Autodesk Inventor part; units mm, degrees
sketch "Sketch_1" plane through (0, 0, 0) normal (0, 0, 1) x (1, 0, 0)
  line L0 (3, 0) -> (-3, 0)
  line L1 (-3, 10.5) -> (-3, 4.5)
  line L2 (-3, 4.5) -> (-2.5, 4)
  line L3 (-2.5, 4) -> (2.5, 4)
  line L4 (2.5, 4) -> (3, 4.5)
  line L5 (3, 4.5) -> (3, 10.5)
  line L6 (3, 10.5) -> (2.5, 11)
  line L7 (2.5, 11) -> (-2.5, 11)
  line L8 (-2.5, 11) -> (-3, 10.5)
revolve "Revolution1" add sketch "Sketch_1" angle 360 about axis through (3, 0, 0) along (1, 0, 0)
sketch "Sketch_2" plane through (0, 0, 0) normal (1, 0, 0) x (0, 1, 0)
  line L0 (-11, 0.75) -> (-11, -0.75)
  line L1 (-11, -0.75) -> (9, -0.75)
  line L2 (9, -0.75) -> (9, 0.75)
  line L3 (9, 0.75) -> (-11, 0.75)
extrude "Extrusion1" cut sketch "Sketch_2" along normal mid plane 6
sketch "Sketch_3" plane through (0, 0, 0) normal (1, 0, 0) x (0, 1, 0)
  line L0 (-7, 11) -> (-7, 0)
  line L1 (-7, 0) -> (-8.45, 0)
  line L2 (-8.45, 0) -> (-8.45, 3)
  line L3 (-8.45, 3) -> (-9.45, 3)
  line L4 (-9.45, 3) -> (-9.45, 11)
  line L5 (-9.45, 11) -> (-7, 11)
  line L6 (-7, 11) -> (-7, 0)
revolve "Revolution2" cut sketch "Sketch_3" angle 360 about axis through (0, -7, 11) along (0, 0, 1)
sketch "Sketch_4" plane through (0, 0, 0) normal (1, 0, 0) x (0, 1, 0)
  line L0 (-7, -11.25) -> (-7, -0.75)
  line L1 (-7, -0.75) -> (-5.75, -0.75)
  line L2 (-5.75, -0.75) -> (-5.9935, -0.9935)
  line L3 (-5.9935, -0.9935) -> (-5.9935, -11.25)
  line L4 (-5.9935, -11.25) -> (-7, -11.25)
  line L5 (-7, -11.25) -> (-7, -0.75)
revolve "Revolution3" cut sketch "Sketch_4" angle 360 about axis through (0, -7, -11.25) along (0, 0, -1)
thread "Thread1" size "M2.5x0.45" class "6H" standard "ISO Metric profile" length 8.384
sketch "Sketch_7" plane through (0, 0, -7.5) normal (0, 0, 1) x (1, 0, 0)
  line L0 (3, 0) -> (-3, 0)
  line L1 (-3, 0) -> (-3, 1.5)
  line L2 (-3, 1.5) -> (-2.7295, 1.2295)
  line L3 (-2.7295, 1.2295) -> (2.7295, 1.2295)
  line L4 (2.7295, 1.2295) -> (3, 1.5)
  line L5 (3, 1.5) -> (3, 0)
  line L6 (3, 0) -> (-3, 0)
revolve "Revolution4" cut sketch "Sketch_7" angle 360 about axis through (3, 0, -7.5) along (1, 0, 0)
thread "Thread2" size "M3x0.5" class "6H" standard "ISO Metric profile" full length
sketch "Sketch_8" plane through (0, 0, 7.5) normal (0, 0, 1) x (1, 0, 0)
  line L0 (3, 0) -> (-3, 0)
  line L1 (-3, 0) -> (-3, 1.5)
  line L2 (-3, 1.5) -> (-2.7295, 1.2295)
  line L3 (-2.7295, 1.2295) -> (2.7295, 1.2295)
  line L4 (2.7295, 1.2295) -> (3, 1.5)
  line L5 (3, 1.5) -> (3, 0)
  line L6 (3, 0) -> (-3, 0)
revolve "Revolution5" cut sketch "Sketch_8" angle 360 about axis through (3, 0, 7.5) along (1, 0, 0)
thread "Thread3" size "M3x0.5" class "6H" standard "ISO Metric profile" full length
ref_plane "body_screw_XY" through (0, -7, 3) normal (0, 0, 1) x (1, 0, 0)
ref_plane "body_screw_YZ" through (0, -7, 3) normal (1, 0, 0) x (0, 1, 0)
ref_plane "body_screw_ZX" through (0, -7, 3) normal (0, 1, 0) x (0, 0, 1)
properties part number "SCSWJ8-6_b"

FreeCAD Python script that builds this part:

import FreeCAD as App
import Part
import Sketcher
Q = App.Units.Quantity


def add_polygon(sketch, points):
    """Adds a closed chain of lines whose ends are joined by coincident constraints."""
    first, n = sketch.GeometryCount, len(points)
    for a, b in zip(points, points[1:] + points[:1]):
        sketch.addGeometry(Part.LineSegment(App.Vector(*a, 0), App.Vector(*b, 0)), False)
    for i in range(n):
        sketch.addConstraint(Sketcher.Constraint("Coincident", first + i, 2, first + (i + 1) % n, 1))

doc = App.newDocument("Part")
params = doc.addObject("Spreadsheet::Sheet", "Params")
for row, (alias, value) in enumerate([
    ("sketch1_width", "5 mm"),
    ("sketch1_height", "6 mm"),
    ("revolution_angle", "360 deg"),
    ("sketch2_width", "20 mm"),
    ("sketch2_height", "1.5 mm"),
    ("pocket1_length", "6 mm"),
    ("sketch3_width", "1 mm"),
    ("sketch3_height", "11 mm"),
    ("sketch3_height2", "8 mm"),
    ("sketch3_width2", "2.45 mm"),
    ("groove_angle", "360 deg"),
    ("sketch4_height", "10.5 mm"),
    ("sketch4_width", "1.25 mm"),
    ("groove2_angle", "360 deg"),
    ("sketch5_width", "6 mm"),
    ("sketch5_height", "1.5 mm"),
    ("groove3_angle", "360 deg"),
    ("sketch6_width", "6 mm"),
    ("sketch6_height", "1.5 mm"),
    ("groove4_angle", "360 deg"),
], start=1):
    params.set(f"A{row}", alias)
    params.set(f"B{row}", "=" + value)
    params.setAlias(f"B{row}", alias)

body = doc.addObject("PartDesign::Body", "Body")

sketch1 = body.newObject("Sketcher::SketchObject", "Sketch")
sketch1.AttachmentSupport = (doc.getObject("XY_Plane"), [""])
sketch1.MapMode = "FlatFace"
add_polygon(sketch1, [(-2.5, 11), (-3, 10.5), (-3, 4.5), (-2.5, 4), (2.5, 4), (3, 4.5), (3, 10.5), (2.5, 11)])
sketch1.addConstraint(Sketcher.Constraint("Vertical", 1))
sketch1.addConstraint(Sketcher.Constraint("Horizontal", 3))
sketch1.addConstraint(Sketcher.Constraint("Vertical", 5))
sketch1.addConstraint(Sketcher.Constraint("Horizontal", 7))
sketch1.addConstraint(Sketcher.Constraint("Symmetric", 1, 2, 4, 2, -2))
sketch1.addConstraint(Sketcher.Constraint("Perpendicular", 0, 2))
sketch1.addConstraint(Sketcher.Constraint("Perpendicular", 2, 4))
sketch1.addConstraint(Sketcher.Constraint("Perpendicular", 4, 6))
sketch1.addConstraint(Sketcher.Constraint("Horizontal", 0, 2, 5, 2))
sketch1.addConstraint(Sketcher.Constraint("Vertical", 3, 2, 6, 2))
sketch1.addConstraint(Sketcher.Constraint("Vertical", 2, 2, 7, 2))
sketch1.addConstraint(Sketcher.Constraint("DistanceX", 3, 1, 3, 2, 5.0))
sketch1.addConstraint(Sketcher.Constraint("DistanceY", 1, 2, 1, 1, 6.0))
sketch1.addConstraint(Sketcher.Constraint("DistanceX", 0, 2, -1, 1, 3.0))
sketch1.addConstraint(Sketcher.Constraint("DistanceY", -1, 1, 2, 2, 4.0))
sketch1.setExpression("Constraints[19]", "Params.sketch1_width")
sketch1.setExpression("Constraints[20]", "Params.sketch1_height")
revolution = body.newObject("PartDesign::Revolution", "Revolution")
revolution.Profile = sketch1
revolution.ReferenceAxis = (sketch1, ["H_Axis"])
revolution.setExpression("Angle", "Params.revolution_angle")

sketch2 = body.newObject("Sketcher::SketchObject", "Sketch001")
sketch2.AttachmentSupport = (doc.getObject("YZ_Plane"), [""])
sketch2.MapMode = "FlatFace"
add_polygon(sketch2, [(9, 0.8), (-11, 0.8), (-11, -0.8), (9, -0.8)])
sketch2.addConstraint(Sketcher.Constraint("Horizontal", 0))
sketch2.addConstraint(Sketcher.Constraint("Vertical", 1))
sketch2.addConstraint(Sketcher.Constraint("Horizontal", 2))
sketch2.addConstraint(Sketcher.Constraint("Vertical", 3))
sketch2.addConstraint(Sketcher.Constraint("DistanceX", 0, 2, 0, 1, 20.0))
sketch2.addConstraint(Sketcher.Constraint("DistanceY", 1, 2, 1, 1, 1.5))
sketch2.addConstraint(Sketcher.Constraint("DistanceX", 0, 2, -1, 1, 11.0))
sketch2.addConstraint(Sketcher.Constraint("DistanceY", -1, 1, 0, 2, 0.75))
sketch2.setExpression("Constraints[8]", "Params.sketch2_width")
sketch2.setExpression("Constraints[9]", "Params.sketch2_height")
pocket1 = body.newObject("PartDesign::Pocket", "Pocket")
pocket1.Profile = sketch2
pocket1.setExpression("Length", "Params.pocket1_length")
pocket1.Midplane = True

sketch3 = body.newObject("Sketcher::SketchObject", "Sketch002")
sketch3.AttachmentSupport = (doc.getObject("YZ_Plane"), [""])
sketch3.MapMode = "FlatFace"
add_polygon(sketch3, [(-7, 0), (-7, 11), (-9.4, 11), (-9.4, 3), (-8.4, 3), (-8.4, 0)])
sketch3.addGeometry(Part.LineSegment(App.Vector(-7, 0, 0), App.Vector(-7, 11, 0)), True)
sketch3.addConstraint(Sketcher.Constraint("Vertical", 0))
sketch3.addConstraint(Sketcher.Constraint("Horizontal", 1))
sketch3.addConstraint(Sketcher.Constraint("Vertical", 2))
sketch3.addConstraint(Sketcher.Constraint("Horizontal", 3))
sketch3.addConstraint(Sketcher.Constraint("Vertical", 4))
sketch3.addConstraint(Sketcher.Constraint("Horizontal", 5))
sketch3.addConstraint(Sketcher.Constraint("Vertical", 6))
sketch3.addConstraint(Sketcher.Constraint("Coincident", 6, 1, 5, 2))
sketch3.addConstraint(Sketcher.Constraint("PointOnObject", 4, 2, -1))
sketch3.addConstraint(Sketcher.Constraint("Horizontal", 1, 2, 6, 2))
sketch3.addConstraint(Sketcher.Constraint("DistanceX", 3, 1, 3, 2, 1.0))
sketch3.addConstraint(Sketcher.Constraint("DistanceY", 0, 1, 0, 2, 11.0))
sketch3.addConstraint(Sketcher.Constraint("DistanceY", 2, 2, 2, 1, 8.0))
sketch3.addConstraint(Sketcher.Constraint("DistanceX", 0, 2, -1, 1, 7.0))
sketch3.addConstraint(Sketcher.Constraint("DistanceX", 1, 2, 1, 1, 2.45))
sketch3.setExpression("Constraints[16]", "Params.sketch3_width")
sketch3.setExpression("Constraints[17]", "Params.sketch3_height")
sketch3.setExpression("Constraints[18]", "Params.sketch3_height2")
sketch3.setExpression("Constraints[20]", "Params.sketch3_width2")
groove = body.newObject("PartDesign::Groove", "Groove")
groove.Profile = sketch3
groove.ReferenceAxis = (sketch3, ["Axis0"])
groove.setExpression("Angle", "Params.groove_angle")

sketch4 = body.newObject("Sketcher::SketchObject", "Sketch003")
sketch4.AttachmentSupport = (doc.getObject("YZ_Plane"), [""])
sketch4.MapMode = "FlatFace"
add_polygon(sketch4, [(-7, -0.75), (-7, -11.25), (-5.99, -11.25), (-5.99, -0.99), (-5.75, -0.75)])
sketch4.addGeometry(Part.LineSegment(App.Vector(-7, -0.75, 0), App.Vector(-7, -11.25, 0)), True)
sketch4.addConstraint(Sketcher.Constraint("Vertical", 0))
sketch4.addConstraint(Sketcher.Constraint("Horizontal", 1))
sketch4.addConstraint(Sketcher.Constraint("Vertical", 2))
sketch4.addConstraint(Sketcher.Constraint("Horizontal", 4))
sketch4.addConstraint(Sketcher.Constraint("Vertical", 5))
sketch4.addConstraint(Sketcher.Constraint("Coincident", 5, 1, 4, 2))
sketch4.addConstraint(Sketcher.Constraint("Horizontal", 1, 2, 5, 2))
sketch4.addConstraint(Sketcher.Constraint("Angle", 3, Q("45 deg")))
sketch4.addConstraint(Sketcher.Constraint("DistanceY", 0, 2, 0, 1, 10.5))
sketch4.addConstraint(Sketcher.Constraint("DistanceX", 0, 2, -1, 1, 7.0))
sketch4.addConstraint(Sketcher.Constraint("DistanceX", 4, 2, 4, 1, 1.25))
sketch4.addConstraint(Sketcher.Constraint("DistanceY", 0, 2, -1, 1, 11.25))
sketch4.addConstraint(Sketcher.Constraint("DistanceX", 1, 1, 1, 2, 1.0065))
sketch4.setExpression("Constraints[13]", "Params.sketch4_height")
sketch4.setExpression("Constraints[15]", "Params.sketch4_width")
groove2 = body.newObject("PartDesign::Groove", "Groove001")
groove2.Profile = sketch4
groove2.ReferenceAxis = (sketch4, ["Axis0"])
groove2.setExpression("Angle", "Params.groove2_angle")

sketch5 = body.newObject("Sketcher::SketchObject", "Sketch004")
sketch5.AttachmentSupport = (doc.getObject("XY_Plane"), [""])
sketch5.MapMode = "FlatFace"
sketch5.AttachmentOffset = App.Placement(App.Vector(0, 0, -7.5), App.Rotation())
add_polygon(sketch5, [(-3, 0), (3, 0), (3, 1.5), (2.73, 1.23), (-2.73, 1.23), (-3, 1.5)])
sketch5.addConstraint(Sketcher.Constraint("Horizontal", 0))
sketch5.addConstraint(Sketcher.Constraint("Vertical", 1))
sketch5.addConstraint(Sketcher.Constraint("Horizontal", 3))
sketch5.addConstraint(Sketcher.Constraint("Vertical", 5))
sketch5.addConstraint(Sketcher.Constraint("Symmetric", 0, 2, 5, 2, -1, 1))
sketch5.addConstraint(Sketcher.Constraint("Perpendicular", 2, 4))
sketch5.addConstraint(Sketcher.Constraint("Horizontal", 1, 2, 4, 2))
sketch5.addConstraint(Sketcher.Constraint("Equal", 2, 4))
sketch5.addConstraint(Sketcher.Constraint("DistanceX", 0, 1, 0, 2, 6.0))
sketch5.addConstraint(Sketcher.Constraint("DistanceY", 1, 1, 1, 2, 1.5))
sketch5.addConstraint(Sketcher.Constraint("DistanceX", 3, 2, 3, 1, 5.459))
sketch5.setExpression("Constraints[14]", "Params.sketch5_width")
sketch5.setExpression("Constraints[15]", "Params.sketch5_height")
groove3 = body.newObject("PartDesign::Groove", "Groove002")
groove3.Profile = sketch5
groove3.ReferenceAxis = (sketch5, ["H_Axis"])
groove3.setExpression("Angle", "Params.groove3_angle")

sketch6 = body.newObject("Sketcher::SketchObject", "Sketch005")
sketch6.AttachmentSupport = (doc.getObject("XY_Plane"), [""])
sketch6.MapMode = "FlatFace"
sketch6.AttachmentOffset = App.Placement(App.Vector(0, 0, 7.5), App.Rotation())
add_polygon(sketch6, [(-3, 0), (3, 0), (3, 1.5), (2.73, 1.23), (-2.73, 1.23), (-3, 1.5)])
sketch6.addConstraint(Sketcher.Constraint("Horizontal", 0))
sketch6.addConstraint(Sketcher.Constraint("Vertical", 1))
sketch6.addConstraint(Sketcher.Constraint("Horizontal", 3))
sketch6.addConstraint(Sketcher.Constraint("Vertical", 5))
sketch6.addConstraint(Sketcher.Constraint("Symmetric", 0, 2, 5, 2, -1, 1))
sketch6.addConstraint(Sketcher.Constraint("Perpendicular", 2, 4))
sketch6.addConstraint(Sketcher.Constraint("Horizontal", 1, 2, 4, 2))
sketch6.addConstraint(Sketcher.Constraint("Equal", 2, 4))
sketch6.addConstraint(Sketcher.Constraint("DistanceX", 0, 1, 0, 2, 6.0))
sketch6.addConstraint(Sketcher.Constraint("DistanceY", 1, 1, 1, 2, 1.5))
sketch6.addConstraint(Sketcher.Constraint("DistanceX", 3, 2, 3, 1, 5.459))
sketch6.setExpression("Constraints[14]", "Params.sketch6_width")
sketch6.setExpression("Constraints[15]", "Params.sketch6_height")
groove4 = body.newObject("PartDesign::Groove", "Groove003")
groove4.Profile = sketch6
groove4.ReferenceAxis = (sketch6, ["H_Axis"])
groove4.setExpression("Angle", "Params.groove4_angle")

doc.recompute()
